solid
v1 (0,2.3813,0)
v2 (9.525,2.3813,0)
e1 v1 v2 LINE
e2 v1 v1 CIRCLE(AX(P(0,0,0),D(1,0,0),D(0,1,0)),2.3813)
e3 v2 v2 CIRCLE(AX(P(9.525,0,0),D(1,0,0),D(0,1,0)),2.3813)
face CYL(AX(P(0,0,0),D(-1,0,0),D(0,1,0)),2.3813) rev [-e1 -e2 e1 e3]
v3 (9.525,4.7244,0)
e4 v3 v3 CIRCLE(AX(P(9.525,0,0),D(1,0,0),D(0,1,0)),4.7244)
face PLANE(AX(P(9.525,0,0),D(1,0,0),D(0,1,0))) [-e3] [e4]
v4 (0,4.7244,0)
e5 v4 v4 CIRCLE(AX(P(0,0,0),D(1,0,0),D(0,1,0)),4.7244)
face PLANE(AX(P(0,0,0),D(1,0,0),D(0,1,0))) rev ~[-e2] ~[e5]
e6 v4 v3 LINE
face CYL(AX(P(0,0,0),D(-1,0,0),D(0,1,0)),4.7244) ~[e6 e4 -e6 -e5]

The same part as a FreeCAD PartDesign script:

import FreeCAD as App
import Part
import Sketcher
from FreeCAD import Vector
Q = App.Units.Quantity

doc = App.newDocument("Part")
body = doc.addObject("PartDesign::Body", "Body")

# Sketch on YZ plane
sketch1 = body.newObject("Sketcher::SketchObject", "Sketch")
sketch1.AttachmentSupport = (doc.getObject("YZ_Plane"), [""])
sketch1.MapMode = "FlatFace"
sketch1.addGeometry(Part.Circle(Vector(0, 0, 0), Vector(0, 0, 1), 4.7), False)
sketch1.addGeometry(Part.Circle(Vector(0, 0, 0), Vector(0, 0, 1), 2.4), False)
sketch1.addConstraint(Sketcher.Constraint("Coincident", 0, 3, -1, 1))
sketch1.addConstraint(Sketcher.Constraint("Coincident", 1, 3, -1, 1))
sketch1.addConstraint(Sketcher.Constraint("Diameter", 0, Q("0.372 in")))
sketch1.addConstraint(Sketcher.Constraint("Diameter", 1, Q("0.1875 in")))
pad1 = body.newObject("PartDesign::Pad", "Pad")
pad1.Profile = sketch1
pad1.Length = Q("0.375 in")

doc.recompute()
